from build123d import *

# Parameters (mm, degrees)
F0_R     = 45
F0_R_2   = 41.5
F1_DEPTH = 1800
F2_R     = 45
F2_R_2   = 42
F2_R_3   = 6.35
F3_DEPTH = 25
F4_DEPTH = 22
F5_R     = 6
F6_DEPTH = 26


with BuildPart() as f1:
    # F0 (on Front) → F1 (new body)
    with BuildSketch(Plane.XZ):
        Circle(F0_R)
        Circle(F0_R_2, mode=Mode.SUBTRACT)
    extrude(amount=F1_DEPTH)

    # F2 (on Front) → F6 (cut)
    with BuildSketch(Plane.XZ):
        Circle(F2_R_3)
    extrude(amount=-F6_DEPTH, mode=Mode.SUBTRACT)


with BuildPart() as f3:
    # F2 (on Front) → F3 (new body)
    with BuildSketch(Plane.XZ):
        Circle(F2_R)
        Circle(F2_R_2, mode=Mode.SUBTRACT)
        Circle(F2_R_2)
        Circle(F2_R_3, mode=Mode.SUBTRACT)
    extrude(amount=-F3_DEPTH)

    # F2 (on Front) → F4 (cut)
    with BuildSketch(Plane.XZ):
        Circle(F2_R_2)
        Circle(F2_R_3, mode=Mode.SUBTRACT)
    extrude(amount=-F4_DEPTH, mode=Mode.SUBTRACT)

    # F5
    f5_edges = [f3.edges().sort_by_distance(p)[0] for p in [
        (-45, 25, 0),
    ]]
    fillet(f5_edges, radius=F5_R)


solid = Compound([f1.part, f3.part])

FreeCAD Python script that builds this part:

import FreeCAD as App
import Part
import Sketcher
from FreeCAD import Vector


def edges_at(feature, points):
    """Names of the edges that pass closest to the given points."""
    edges = feature.Shape.Edges
    near = lambda p: min(range(len(edges)), key=lambda i: edges[i].distToShape(Part.Vertex(*p))[0])
    return sorted({f"Edge{near(p) + 1}" for p in points})

doc = App.newDocument("Part")
body = doc.addObject("PartDesign::Body", "Body")

# Sketch on XZ plane
sketch1 = body.newObject("Sketcher::SketchObject", "Sketch")
sketch1.AttachmentSupport = (doc.getObject("XZ_Plane"), [""])
sketch1.MapMode = "FlatFace"
sketch1.addGeometry(Part.Circle(Vector(0, 0, 0), Vector(0, 0, 1), 45), False)
sketch1.addGeometry(Part.Circle(Vector(0, 0, 0), Vector(0, 0, 1), 42), False)
sketch1.addConstraint(Sketcher.Constraint("Coincident", 0, 3, -1, 1))
sketch1.addConstraint(Sketcher.Constraint("Coincident", 1, 3, -1, 1))
sketch1.addConstraint(Sketcher.Constraint("Diameter", 0, 90.0))
sketch1.addConstraint(Sketcher.Constraint("Diameter", 1, 83.0))
pad1 = body.newObject("PartDesign::Pad", "Pad")
pad1.Profile = sketch1
pad1.Length = 1800

# Sketch on XZ plane
sketch2 = body.newObject("Sketcher::SketchObject", "Sketch001")
sketch2.AttachmentSupport = (doc.getObject("XZ_Plane"), [""])
sketch2.MapMode = "FlatFace"
sketch2.addGeometry(Part.Circle(Vector(0, 0, 0), Vector(0, 0, 1), 6), False)
sketch2.addConstraint(Sketcher.Constraint("Coincident", 0, 3, -1, 1))
sketch2.addConstraint(Sketcher.Constraint("Diameter", 0, 12.7))
pocket1 = body.newObject("PartDesign::Pocket", "Pocket")
pocket1.Profile = sketch2
pocket1.Length = 26
body2 = doc.addObject("PartDesign::Body", "Body001")

# Sketch on XZ plane
sketch3 = body2.newObject("Sketcher::SketchObject", "Sketch002")
sketch3.AttachmentSupport = (doc.getObject("XZ_Plane001"), [""])
sketch3.MapMode = "FlatFace"
sketch3.addGeometry(Part.Circle(Vector(0, 0, 0), Vector(0, 0, 1), 45), False)
sketch3.addGeometry(Part.Circle(Vector(0, 0, 0), Vector(0, 0, 1), 6), False)
sketch3.addConstraint(Sketcher.Constraint("Coincident", 0, 3, -1, 1))
sketch3.addConstraint(Sketcher.Constraint("Coincident", 1, 3, -1, 1))
sketch3.addConstraint(Sketcher.Constraint("Diameter", 0, 90.0))
sketch3.addConstraint(Sketcher.Constraint("Diameter", 1, 12.7))
pad2 = body2.newObject("PartDesign::Pad", "Pad001")
pad2.Profile = sketch3
pad2.Length = 25
pad2.Reversed = True

# Sketch on XZ plane
sketch4 = body2.newObject("Sketcher::SketchObject", "Sketch003")
sketch4.AttachmentSupport = (doc.getObject("XZ_Plane001"), [""])
sketch4.MapMode = "FlatFace"
sketch4.addGeometry(Part.Circle(Vector(0, 0, 0), Vector(0, 0, 1), 42), False)
sketch4.addGeometry(Part.Circle(Vector(0, 0, 0), Vector(0, 0, 1), 6), False)
sketch4.addConstraint(Sketcher.Constraint("Coincident", 0, 3, -1, 1))
sketch4.addConstraint(Sketcher.Constraint("Coincident", 1, 3, -1, 1))
sketch4.addConstraint(Sketcher.Constraint("Diameter", 0, 84.0))
sketch4.addConstraint(Sketcher.Constraint("Diameter", 1, 12.7))
pocket2 = body2.newObject("PartDesign::Pocket", "Pocket001")
pocket2.Profile = sketch4
pocket2.Length = 22
doc.recompute()

fillet = body2.newObject("PartDesign::Fillet", "Fillet")
fillet.Base = (pocket2, edges_at(pocket2, [(-45, 25, 0)]))
fillet.Radius = 6

doc.recompute()
